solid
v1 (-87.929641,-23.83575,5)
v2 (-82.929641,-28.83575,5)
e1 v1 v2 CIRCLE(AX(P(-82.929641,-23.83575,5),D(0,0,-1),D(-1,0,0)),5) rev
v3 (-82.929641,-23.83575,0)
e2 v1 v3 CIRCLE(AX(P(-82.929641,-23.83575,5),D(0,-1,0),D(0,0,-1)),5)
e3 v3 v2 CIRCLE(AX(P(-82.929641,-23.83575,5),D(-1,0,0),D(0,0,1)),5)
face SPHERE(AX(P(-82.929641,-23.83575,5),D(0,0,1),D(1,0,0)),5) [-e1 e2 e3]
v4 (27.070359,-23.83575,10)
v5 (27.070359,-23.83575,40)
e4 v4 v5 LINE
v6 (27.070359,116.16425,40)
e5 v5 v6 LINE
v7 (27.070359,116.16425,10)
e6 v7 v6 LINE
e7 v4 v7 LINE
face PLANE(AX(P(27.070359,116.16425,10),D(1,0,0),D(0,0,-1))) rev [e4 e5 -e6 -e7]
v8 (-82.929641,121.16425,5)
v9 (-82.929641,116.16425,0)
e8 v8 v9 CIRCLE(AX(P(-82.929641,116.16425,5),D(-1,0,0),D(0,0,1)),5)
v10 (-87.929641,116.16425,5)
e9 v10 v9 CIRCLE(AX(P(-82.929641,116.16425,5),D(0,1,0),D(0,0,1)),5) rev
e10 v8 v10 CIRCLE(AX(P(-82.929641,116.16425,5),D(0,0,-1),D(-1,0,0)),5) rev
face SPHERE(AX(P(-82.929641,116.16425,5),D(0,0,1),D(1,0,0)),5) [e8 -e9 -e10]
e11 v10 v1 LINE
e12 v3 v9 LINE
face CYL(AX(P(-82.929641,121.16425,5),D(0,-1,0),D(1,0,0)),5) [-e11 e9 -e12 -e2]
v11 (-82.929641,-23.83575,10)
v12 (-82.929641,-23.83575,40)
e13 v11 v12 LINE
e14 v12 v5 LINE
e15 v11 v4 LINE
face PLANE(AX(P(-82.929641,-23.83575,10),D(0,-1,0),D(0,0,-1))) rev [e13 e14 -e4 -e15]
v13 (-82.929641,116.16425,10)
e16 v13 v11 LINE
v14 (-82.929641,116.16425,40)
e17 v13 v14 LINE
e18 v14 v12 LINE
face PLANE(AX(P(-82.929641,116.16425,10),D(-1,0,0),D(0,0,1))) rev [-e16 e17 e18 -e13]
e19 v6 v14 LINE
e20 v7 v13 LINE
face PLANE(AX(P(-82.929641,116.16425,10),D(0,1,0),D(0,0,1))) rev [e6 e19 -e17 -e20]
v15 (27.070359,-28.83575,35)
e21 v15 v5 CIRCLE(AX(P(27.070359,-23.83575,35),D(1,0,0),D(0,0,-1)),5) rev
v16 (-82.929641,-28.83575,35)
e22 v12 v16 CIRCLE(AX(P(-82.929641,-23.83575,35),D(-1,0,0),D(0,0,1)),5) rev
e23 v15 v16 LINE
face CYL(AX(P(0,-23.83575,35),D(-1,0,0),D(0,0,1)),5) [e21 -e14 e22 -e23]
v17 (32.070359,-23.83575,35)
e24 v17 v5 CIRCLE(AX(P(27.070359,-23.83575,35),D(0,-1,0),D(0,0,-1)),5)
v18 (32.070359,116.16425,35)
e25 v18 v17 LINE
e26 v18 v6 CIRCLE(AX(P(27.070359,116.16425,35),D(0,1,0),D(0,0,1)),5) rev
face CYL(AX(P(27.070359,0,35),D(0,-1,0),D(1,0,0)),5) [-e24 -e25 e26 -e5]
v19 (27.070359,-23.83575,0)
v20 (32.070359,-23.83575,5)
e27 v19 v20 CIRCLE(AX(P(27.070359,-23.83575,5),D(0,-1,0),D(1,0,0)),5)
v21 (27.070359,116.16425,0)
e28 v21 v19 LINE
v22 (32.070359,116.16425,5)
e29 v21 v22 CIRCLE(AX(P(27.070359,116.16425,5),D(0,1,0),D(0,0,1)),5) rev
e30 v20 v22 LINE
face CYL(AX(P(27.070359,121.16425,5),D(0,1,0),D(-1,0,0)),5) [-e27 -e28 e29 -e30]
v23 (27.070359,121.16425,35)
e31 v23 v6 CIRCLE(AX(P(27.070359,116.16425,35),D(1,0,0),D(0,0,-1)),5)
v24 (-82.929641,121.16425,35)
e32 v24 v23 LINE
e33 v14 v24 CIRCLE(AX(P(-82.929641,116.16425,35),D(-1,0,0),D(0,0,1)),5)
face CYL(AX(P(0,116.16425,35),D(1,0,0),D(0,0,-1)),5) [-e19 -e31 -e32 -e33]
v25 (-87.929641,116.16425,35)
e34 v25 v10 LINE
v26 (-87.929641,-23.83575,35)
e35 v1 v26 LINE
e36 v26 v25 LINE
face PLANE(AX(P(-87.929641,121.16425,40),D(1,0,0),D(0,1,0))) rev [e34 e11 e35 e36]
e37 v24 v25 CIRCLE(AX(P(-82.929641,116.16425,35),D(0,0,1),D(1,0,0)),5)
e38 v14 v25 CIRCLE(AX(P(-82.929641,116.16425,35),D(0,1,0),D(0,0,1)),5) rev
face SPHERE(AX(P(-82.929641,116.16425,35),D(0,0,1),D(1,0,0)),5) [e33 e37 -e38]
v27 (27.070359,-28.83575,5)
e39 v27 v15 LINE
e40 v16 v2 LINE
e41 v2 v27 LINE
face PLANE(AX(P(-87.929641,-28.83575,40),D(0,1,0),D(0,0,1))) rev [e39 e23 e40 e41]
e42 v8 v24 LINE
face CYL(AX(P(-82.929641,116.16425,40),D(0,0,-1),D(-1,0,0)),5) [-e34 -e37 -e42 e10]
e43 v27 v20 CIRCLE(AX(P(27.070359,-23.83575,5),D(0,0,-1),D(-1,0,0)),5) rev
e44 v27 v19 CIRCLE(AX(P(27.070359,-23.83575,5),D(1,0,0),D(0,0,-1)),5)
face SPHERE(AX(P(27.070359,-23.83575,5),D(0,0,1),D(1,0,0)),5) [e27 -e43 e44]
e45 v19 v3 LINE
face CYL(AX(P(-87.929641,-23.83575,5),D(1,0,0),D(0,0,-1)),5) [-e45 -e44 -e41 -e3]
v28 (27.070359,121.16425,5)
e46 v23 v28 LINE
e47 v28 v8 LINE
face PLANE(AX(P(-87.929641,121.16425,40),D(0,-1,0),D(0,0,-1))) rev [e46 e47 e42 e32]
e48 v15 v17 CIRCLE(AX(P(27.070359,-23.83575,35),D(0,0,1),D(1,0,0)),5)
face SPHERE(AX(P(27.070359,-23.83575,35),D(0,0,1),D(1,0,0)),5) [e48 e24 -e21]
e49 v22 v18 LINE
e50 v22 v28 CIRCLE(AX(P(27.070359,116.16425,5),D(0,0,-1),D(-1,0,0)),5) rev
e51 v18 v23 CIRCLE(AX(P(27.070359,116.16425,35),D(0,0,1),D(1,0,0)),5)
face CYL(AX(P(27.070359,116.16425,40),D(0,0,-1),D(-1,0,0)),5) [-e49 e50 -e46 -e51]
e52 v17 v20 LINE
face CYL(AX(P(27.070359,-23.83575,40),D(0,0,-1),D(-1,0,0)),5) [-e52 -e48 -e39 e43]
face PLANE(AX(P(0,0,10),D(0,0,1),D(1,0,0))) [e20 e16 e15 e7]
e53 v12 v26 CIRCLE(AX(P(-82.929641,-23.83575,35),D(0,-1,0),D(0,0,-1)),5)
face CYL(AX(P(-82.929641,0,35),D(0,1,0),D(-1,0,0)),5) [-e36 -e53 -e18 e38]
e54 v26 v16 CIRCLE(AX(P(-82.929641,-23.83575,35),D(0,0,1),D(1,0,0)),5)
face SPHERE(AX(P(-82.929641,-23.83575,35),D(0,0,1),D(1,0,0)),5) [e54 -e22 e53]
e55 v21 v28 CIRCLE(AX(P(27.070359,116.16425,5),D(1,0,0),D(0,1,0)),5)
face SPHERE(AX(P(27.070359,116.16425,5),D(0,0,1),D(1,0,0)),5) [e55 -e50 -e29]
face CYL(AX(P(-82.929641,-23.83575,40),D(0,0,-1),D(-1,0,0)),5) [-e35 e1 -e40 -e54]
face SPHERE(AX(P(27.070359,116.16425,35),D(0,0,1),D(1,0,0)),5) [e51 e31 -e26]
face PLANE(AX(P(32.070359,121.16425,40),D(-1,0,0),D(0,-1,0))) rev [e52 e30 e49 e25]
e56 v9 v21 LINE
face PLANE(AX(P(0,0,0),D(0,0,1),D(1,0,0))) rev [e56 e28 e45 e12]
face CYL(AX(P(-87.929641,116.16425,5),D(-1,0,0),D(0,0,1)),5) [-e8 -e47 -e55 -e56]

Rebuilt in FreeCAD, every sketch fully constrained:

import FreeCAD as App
import Part
import Sketcher

V = App.Vector
Q = App.Units.Quantity

doc = App.newDocument("Part")
body = doc.addObject("PartDesign::Body", "Body")

sketch1 = doc.addObject("Sketcher::SketchObject", "Sketch")
body.addObject(sketch1)
sketch1.AttachmentSupport = (doc.XY_Plane, [""])
sketch1.MapMode = "FlatFace"
sketch1.addGeometry([
    Part.LineSegment(V(-88, 121, 0), V(-88, -29, 0)),
    Part.LineSegment(V(-88, -29, 0), V(32, -29, 0)),
    Part.LineSegment(V(32, -29, 0), V(32, 121, 0)),
    Part.LineSegment(V(32, 121, 0), V(-88, 121, 0)),
], False)
sketch1.addConstraint([
    Sketcher.Constraint("Coincident", 0, 2, 1, 1),
    Sketcher.Constraint("Coincident", 1, 2, 2, 1),
    Sketcher.Constraint("Coincident", 2, 2, 3, 1),
    Sketcher.Constraint("Coincident", 3, 2, 0, 1),
    Sketcher.Constraint("Vertical", 0),
    Sketcher.Constraint("Horizontal", 1),
    Sketcher.Constraint("Vertical", 2),
    Sketcher.Constraint("Horizontal", 3),
    Sketcher.Constraint("DistanceX", 1, 1, 1, 2, Q("120 mm")),
    Sketcher.Constraint("DistanceY", 0, 2, 0, 1, Q("150 mm")),
    Sketcher.Constraint("DistanceX", 0, 2, -1, 1, Q("87.929641 mm")),
    Sketcher.Constraint("DistanceY", 0, 2, -1, 1, Q("28.83575 mm")),
])
pad1 = doc.addObject("PartDesign::Pad", "Pad")
body.addObject(pad1)
pad1.Profile = sketch1
pad1.Length = 40
doc.recompute()

fillet = doc.addObject("PartDesign::Fillet", "Fillet")
body.addObject(fillet)
fillet.Base = (pad1, ["Edge1"])
fillet.UseAllEdges = True
fillet.Radius = 5

sketch2 = doc.addObject("Sketcher::SketchObject", "Sketch001")
body.addObject(sketch2)
sketch2.AttachmentSupport = (doc.XY_Plane, [""])
sketch2.MapMode = "FlatFace"
sketch2.AttachmentOffset = App.Placement(V(0, 0, 40), App.Rotation())
sketch2.addGeometry([
    Part.LineSegment(V(-83, 116, 0), V(-83, -24, 0)),
    Part.LineSegment(V(-83, -24, 0), V(27, -24, 0)),
    Part.LineSegment(V(27, -24, 0), V(27, 116, 0)),
    Part.LineSegment(V(27, 116, 0), V(-83, 116, 0)),
], False)
sketch2.addConstraint([
    Sketcher.Constraint("Coincident", 0, 2, 1, 1),
    Sketcher.Constraint("Coincident", 1, 2, 2, 1),
    Sketcher.Constraint("Coincident", 2, 2, 3, 1),
    Sketcher.Constraint("Coincident", 3, 2, 0, 1),
    Sketcher.Constraint("Vertical", 0),
    Sketcher.Constraint("Horizontal", 1),
    Sketcher.Constraint("Vertical", 2),
    Sketcher.Constraint("Horizontal", 3),
    Sketcher.Constraint("DistanceX", 1, 1, 1, 2, Q("110 mm")),
    Sketcher.Constraint("DistanceY", 0, 2, 0, 1, Q("140 mm")),
    Sketcher.Constraint("DistanceX", 0, 2, -1, 1, Q("82.929641 mm")),
    Sketcher.Constraint("DistanceY", 0, 2, -1, 1, Q("23.83575 mm")),
])
pocket1 = doc.addObject("PartDesign::Pocket", "Pocket")
body.addObject(pocket1)
pocket1.Profile = sketch2
pocket1.Length = 30

doc.recompute()
